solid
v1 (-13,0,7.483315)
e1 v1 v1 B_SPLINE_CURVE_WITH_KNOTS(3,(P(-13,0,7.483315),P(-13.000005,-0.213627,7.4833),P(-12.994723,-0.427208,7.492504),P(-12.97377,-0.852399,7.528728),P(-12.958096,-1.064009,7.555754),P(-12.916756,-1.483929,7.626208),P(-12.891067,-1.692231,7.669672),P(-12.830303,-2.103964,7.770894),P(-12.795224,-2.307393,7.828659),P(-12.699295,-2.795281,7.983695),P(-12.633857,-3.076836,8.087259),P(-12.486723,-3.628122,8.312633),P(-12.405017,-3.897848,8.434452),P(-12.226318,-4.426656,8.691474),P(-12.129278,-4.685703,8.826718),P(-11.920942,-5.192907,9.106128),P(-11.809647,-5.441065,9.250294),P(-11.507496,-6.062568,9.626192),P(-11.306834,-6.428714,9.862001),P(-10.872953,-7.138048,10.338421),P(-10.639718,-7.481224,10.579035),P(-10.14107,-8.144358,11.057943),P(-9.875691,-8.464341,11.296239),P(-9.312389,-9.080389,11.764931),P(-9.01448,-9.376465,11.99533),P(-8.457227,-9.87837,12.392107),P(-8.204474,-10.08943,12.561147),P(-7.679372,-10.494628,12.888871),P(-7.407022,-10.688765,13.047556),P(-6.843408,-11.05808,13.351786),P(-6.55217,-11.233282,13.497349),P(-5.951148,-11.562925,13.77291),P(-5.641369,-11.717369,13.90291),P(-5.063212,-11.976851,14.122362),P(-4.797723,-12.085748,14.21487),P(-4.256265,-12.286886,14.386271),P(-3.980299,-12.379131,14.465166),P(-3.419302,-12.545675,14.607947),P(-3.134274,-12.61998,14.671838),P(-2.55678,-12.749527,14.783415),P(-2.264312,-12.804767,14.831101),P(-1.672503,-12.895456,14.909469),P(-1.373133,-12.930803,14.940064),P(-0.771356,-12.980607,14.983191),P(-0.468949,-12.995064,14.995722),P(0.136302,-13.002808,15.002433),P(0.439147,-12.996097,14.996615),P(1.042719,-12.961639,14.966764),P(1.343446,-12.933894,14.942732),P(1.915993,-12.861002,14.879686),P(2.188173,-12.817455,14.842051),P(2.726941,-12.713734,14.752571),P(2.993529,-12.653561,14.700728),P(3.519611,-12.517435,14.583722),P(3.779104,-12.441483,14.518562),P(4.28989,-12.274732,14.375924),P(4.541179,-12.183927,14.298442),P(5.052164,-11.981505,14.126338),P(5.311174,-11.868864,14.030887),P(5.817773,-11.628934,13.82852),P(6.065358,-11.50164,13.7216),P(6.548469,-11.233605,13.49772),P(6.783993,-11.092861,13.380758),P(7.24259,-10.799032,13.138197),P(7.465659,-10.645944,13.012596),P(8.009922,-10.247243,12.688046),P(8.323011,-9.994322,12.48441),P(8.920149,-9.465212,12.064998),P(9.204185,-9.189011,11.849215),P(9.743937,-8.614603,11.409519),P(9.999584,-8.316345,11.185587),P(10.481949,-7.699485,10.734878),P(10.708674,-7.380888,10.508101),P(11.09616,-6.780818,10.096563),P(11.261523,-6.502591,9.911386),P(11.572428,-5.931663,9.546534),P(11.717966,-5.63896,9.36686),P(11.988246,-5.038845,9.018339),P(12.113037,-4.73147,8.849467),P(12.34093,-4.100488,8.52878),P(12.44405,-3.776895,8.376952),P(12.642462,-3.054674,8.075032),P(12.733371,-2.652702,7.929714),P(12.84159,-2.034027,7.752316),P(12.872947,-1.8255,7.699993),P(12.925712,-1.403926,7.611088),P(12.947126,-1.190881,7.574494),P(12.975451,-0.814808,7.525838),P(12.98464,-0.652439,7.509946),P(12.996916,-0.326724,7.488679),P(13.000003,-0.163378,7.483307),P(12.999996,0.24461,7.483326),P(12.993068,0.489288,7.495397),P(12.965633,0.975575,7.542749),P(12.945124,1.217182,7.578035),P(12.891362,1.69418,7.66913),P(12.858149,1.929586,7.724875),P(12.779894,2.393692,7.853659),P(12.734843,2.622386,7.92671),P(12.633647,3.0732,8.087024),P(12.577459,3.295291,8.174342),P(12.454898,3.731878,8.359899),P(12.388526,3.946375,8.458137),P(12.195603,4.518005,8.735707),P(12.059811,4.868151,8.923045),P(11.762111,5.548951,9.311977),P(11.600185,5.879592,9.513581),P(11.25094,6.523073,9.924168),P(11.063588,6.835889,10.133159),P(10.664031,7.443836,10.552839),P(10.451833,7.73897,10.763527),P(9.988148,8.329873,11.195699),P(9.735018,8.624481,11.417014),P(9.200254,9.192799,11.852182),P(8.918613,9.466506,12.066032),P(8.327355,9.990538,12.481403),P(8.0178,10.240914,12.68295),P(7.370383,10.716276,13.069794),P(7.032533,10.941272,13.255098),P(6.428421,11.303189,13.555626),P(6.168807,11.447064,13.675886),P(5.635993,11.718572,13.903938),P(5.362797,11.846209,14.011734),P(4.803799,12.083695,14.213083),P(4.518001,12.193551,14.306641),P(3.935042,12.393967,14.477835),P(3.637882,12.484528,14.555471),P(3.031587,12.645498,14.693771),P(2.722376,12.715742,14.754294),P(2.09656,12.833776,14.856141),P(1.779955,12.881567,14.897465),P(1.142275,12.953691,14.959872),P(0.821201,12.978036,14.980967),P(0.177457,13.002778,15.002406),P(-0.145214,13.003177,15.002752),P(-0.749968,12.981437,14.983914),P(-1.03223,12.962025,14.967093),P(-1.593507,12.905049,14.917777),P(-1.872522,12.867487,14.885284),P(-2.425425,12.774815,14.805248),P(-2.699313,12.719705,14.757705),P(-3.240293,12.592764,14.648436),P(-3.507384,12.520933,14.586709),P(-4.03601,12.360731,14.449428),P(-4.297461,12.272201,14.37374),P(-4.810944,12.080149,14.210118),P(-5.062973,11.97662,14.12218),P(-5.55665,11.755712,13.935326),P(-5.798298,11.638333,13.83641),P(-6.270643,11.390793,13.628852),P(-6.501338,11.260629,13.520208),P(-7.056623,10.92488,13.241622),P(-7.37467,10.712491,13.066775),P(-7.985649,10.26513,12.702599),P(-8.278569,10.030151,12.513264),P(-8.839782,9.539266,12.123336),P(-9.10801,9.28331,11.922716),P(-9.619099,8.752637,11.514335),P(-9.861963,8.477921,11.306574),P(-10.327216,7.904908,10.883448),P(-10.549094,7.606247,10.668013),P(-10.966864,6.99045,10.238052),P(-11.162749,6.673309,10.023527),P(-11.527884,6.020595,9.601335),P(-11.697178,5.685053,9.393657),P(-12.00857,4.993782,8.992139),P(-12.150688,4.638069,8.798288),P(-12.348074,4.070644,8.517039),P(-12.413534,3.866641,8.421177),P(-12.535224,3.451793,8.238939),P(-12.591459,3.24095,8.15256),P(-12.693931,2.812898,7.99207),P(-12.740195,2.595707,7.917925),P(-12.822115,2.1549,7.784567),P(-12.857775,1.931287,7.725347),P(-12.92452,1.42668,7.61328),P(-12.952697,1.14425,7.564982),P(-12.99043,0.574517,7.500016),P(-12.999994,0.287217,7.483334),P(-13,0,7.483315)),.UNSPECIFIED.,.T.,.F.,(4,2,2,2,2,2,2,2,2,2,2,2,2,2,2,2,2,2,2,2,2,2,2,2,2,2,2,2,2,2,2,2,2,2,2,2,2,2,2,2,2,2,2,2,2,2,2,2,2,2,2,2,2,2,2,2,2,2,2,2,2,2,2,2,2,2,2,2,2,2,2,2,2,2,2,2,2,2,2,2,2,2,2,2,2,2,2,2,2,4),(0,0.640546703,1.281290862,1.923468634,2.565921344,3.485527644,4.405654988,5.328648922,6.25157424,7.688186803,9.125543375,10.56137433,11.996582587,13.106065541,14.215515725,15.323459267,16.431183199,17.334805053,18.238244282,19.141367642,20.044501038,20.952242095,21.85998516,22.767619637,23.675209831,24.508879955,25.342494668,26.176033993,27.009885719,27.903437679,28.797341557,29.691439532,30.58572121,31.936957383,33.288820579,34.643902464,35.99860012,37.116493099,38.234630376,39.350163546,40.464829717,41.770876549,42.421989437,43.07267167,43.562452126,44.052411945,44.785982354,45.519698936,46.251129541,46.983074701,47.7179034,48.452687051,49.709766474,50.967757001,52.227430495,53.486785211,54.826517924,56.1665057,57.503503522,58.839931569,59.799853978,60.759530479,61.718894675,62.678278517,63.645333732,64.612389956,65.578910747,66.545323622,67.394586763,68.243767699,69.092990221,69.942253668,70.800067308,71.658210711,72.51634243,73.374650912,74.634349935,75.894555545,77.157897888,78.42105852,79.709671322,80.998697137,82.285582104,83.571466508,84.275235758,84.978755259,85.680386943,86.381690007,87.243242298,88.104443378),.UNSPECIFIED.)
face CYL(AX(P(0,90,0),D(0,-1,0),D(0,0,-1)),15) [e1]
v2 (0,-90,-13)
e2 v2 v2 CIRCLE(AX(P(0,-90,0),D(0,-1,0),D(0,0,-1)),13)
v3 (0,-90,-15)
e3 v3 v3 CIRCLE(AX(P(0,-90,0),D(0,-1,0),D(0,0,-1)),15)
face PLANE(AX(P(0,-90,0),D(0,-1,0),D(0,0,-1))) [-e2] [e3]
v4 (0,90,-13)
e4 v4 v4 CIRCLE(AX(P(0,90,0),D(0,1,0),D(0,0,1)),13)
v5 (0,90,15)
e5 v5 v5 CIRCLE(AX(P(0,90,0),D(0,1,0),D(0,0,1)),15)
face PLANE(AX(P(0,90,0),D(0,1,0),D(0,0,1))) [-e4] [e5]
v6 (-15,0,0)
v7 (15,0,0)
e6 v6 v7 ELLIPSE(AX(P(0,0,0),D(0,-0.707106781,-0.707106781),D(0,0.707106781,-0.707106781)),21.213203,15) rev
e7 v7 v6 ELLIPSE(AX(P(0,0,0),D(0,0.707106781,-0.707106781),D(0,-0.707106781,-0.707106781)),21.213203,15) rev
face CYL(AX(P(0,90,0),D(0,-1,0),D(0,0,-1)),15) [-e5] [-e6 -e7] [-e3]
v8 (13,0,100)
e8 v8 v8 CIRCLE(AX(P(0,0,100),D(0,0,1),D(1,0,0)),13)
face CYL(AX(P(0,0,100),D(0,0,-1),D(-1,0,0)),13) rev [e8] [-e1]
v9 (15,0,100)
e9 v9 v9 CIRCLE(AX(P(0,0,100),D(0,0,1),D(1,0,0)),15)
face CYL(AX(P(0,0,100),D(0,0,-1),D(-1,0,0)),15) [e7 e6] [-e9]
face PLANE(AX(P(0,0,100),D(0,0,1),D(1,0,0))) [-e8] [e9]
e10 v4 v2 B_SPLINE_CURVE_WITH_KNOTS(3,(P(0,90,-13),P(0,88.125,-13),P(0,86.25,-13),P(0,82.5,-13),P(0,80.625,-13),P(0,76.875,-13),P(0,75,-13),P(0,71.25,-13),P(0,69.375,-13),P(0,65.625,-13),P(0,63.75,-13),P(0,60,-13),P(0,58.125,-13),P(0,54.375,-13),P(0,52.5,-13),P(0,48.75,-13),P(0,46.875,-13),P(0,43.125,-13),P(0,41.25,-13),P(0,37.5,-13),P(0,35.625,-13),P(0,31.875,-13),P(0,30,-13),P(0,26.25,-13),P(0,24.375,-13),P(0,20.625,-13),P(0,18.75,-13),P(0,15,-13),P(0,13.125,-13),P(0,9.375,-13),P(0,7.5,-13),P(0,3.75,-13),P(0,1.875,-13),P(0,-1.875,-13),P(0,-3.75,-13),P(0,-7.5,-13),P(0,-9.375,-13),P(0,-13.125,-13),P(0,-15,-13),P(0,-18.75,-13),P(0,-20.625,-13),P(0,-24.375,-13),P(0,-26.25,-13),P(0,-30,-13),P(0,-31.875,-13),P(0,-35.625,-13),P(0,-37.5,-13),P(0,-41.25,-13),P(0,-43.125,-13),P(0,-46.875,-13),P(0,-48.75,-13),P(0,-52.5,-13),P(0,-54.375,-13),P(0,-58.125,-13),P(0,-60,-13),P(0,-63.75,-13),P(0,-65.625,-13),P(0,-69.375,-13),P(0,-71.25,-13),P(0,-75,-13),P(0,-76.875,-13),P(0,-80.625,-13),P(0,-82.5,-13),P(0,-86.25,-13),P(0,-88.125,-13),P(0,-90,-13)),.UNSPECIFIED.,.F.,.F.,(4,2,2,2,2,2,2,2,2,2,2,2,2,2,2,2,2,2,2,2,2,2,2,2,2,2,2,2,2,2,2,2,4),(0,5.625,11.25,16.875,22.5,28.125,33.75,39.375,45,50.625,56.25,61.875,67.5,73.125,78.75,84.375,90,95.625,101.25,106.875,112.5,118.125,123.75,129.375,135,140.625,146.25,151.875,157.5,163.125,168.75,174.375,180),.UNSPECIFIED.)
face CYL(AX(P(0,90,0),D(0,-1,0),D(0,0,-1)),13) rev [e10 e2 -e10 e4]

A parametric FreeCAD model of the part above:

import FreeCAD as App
import Part
import Sketcher

doc = App.newDocument("Part")
body = doc.addObject("PartDesign::Body", "Body")

# Sketch on XY plane
sketch1 = doc.addObject("Sketcher::SketchObject", "Sketch")
body.addObject(sketch1)
sketch1.AttachmentSupport = (doc.XY_Plane, [""])
sketch1.MapMode = "FlatFace"
sketch1.addGeometry([
    Part.Circle(App.Vector(0, 0, 0), App.Vector(0, 0, 1), 15),
    Part.Circle(App.Vector(0, 0, 0), App.Vector(0, 0, 1), 13),
], False)
sketch1.addConstraint([
    Sketcher.Constraint("Coincident", 0, 3, -1, 1),
    Sketcher.Constraint("Coincident", 1, 3, -1, 1),
    Sketcher.Constraint("Diameter", 0, 30.0),
    Sketcher.Constraint("Diameter", 1, 26.0),
])
pad1 = doc.addObject("PartDesign::Pad", "Pad")
body.addObject(pad1)
pad1.Profile = sketch1
pad1.Length = 100

# Sketch on XZ plane
sketch2 = doc.addObject("Sketcher::SketchObject", "Sketch001")
body.addObject(sketch2)
sketch2.AttachmentSupport = (doc.XZ_Plane, [""])
sketch2.MapMode = "FlatFace"
sketch2.addGeometry(Part.Circle(App.Vector(0, 0, 0), App.Vector(0, 0, 1), 15), False)
sketch2.addConstraint([
    Sketcher.Constraint("Coincident", 0, 3, -1, 1),
    Sketcher.Constraint("Diameter", 0, 30.0),
])
pocket1 = doc.addObject("PartDesign::Pocket", "Pocket")
body.addObject(pocket1)
pocket1.Profile = sketch2
pocket1.Length = 100
pocket1.Reversed = True

# Sketch on XZ plane
sketch3 = doc.addObject("Sketcher::SketchObject", "Sketch002")
body.addObject(sketch3)
sketch3.AttachmentSupport = (doc.XZ_Plane, [""])
sketch3.MapMode = "FlatFace"
sketch3.addGeometry(Part.Circle(App.Vector(0, 0, 0), App.Vector(0, 0, 1), 15), False)
sketch3.addConstraint([
    Sketcher.Constraint("Coincident", 0, 3, -1, 1),
    Sketcher.Constraint("Diameter", 0, 30.0),
])
pocket2 = doc.addObject("PartDesign::Pocket", "Pocket001")
body.addObject(pocket2)
pocket2.Profile = sketch3
pocket2.Type = "ThroughAll"
pocket2.Midplane = True

# Sketch on XZ plane
sketch4 = doc.addObject("Sketcher::SketchObject", "Sketch003")
body.addObject(sketch4)
sketch4.AttachmentSupport = (doc.XZ_Plane, [""])
sketch4.MapMode = "FlatFace"
sketch4.addGeometry([
    Part.Circle(App.Vector(0, 0, 0), App.Vector(0, 0, 1), 15),
    Part.Circle(App.Vector(0, 0, 0), App.Vector(0, 0, 1), 13),
], False)
sketch4.addConstraint([
    Sketcher.Constraint("Coincident", 0, 3, -1, 1),
    Sketcher.Constraint("Coincident", 1, 3, -1, 1),
    Sketcher.Constraint("Diameter", 0, 30.0),
    Sketcher.Constraint("Diameter", 1, 26.0),
])
pad2 = doc.addObject("PartDesign::Pad", "Pad001")
body.addObject(pad2)
pad2.Profile = sketch4
pad2.Length = 90
pad2.Reversed = True

# Sketch on XZ plane
sketch5 = doc.addObject("Sketcher::SketchObject", "Sketch004")
body.addObject(sketch5)
sketch5.AttachmentSupport = (doc.XZ_Plane, [""])
sketch5.MapMode = "FlatFace"
sketch5.AttachmentOffset = App.Placement(App.Vector(0, 0, 90), App.Rotation())
sketch5.addGeometry([
    Part.Circle(App.Vector(0, 0, 0), App.Vector(0, 0, 1), 15),
    Part.Circle(App.Vector(0, 0, 0), App.Vector(0, 0, 1), 13),
], False)
sketch5.addConstraint([
    Sketcher.Constraint("Coincident", 0, 3, -1, 1),
    Sketcher.Constraint("Coincident", 1, 3, -1, 1),
    Sketcher.Constraint("Diameter", 0, 30.0),
    Sketcher.Constraint("Diameter", 1, 26.0),
])
pad3 = doc.addObject("PartDesign::Pad", "Pad002")
body.addObject(pad3)
pad3.Profile = sketch5
pad3.Length = 90
pad3.Reversed = True

doc.recompute()
